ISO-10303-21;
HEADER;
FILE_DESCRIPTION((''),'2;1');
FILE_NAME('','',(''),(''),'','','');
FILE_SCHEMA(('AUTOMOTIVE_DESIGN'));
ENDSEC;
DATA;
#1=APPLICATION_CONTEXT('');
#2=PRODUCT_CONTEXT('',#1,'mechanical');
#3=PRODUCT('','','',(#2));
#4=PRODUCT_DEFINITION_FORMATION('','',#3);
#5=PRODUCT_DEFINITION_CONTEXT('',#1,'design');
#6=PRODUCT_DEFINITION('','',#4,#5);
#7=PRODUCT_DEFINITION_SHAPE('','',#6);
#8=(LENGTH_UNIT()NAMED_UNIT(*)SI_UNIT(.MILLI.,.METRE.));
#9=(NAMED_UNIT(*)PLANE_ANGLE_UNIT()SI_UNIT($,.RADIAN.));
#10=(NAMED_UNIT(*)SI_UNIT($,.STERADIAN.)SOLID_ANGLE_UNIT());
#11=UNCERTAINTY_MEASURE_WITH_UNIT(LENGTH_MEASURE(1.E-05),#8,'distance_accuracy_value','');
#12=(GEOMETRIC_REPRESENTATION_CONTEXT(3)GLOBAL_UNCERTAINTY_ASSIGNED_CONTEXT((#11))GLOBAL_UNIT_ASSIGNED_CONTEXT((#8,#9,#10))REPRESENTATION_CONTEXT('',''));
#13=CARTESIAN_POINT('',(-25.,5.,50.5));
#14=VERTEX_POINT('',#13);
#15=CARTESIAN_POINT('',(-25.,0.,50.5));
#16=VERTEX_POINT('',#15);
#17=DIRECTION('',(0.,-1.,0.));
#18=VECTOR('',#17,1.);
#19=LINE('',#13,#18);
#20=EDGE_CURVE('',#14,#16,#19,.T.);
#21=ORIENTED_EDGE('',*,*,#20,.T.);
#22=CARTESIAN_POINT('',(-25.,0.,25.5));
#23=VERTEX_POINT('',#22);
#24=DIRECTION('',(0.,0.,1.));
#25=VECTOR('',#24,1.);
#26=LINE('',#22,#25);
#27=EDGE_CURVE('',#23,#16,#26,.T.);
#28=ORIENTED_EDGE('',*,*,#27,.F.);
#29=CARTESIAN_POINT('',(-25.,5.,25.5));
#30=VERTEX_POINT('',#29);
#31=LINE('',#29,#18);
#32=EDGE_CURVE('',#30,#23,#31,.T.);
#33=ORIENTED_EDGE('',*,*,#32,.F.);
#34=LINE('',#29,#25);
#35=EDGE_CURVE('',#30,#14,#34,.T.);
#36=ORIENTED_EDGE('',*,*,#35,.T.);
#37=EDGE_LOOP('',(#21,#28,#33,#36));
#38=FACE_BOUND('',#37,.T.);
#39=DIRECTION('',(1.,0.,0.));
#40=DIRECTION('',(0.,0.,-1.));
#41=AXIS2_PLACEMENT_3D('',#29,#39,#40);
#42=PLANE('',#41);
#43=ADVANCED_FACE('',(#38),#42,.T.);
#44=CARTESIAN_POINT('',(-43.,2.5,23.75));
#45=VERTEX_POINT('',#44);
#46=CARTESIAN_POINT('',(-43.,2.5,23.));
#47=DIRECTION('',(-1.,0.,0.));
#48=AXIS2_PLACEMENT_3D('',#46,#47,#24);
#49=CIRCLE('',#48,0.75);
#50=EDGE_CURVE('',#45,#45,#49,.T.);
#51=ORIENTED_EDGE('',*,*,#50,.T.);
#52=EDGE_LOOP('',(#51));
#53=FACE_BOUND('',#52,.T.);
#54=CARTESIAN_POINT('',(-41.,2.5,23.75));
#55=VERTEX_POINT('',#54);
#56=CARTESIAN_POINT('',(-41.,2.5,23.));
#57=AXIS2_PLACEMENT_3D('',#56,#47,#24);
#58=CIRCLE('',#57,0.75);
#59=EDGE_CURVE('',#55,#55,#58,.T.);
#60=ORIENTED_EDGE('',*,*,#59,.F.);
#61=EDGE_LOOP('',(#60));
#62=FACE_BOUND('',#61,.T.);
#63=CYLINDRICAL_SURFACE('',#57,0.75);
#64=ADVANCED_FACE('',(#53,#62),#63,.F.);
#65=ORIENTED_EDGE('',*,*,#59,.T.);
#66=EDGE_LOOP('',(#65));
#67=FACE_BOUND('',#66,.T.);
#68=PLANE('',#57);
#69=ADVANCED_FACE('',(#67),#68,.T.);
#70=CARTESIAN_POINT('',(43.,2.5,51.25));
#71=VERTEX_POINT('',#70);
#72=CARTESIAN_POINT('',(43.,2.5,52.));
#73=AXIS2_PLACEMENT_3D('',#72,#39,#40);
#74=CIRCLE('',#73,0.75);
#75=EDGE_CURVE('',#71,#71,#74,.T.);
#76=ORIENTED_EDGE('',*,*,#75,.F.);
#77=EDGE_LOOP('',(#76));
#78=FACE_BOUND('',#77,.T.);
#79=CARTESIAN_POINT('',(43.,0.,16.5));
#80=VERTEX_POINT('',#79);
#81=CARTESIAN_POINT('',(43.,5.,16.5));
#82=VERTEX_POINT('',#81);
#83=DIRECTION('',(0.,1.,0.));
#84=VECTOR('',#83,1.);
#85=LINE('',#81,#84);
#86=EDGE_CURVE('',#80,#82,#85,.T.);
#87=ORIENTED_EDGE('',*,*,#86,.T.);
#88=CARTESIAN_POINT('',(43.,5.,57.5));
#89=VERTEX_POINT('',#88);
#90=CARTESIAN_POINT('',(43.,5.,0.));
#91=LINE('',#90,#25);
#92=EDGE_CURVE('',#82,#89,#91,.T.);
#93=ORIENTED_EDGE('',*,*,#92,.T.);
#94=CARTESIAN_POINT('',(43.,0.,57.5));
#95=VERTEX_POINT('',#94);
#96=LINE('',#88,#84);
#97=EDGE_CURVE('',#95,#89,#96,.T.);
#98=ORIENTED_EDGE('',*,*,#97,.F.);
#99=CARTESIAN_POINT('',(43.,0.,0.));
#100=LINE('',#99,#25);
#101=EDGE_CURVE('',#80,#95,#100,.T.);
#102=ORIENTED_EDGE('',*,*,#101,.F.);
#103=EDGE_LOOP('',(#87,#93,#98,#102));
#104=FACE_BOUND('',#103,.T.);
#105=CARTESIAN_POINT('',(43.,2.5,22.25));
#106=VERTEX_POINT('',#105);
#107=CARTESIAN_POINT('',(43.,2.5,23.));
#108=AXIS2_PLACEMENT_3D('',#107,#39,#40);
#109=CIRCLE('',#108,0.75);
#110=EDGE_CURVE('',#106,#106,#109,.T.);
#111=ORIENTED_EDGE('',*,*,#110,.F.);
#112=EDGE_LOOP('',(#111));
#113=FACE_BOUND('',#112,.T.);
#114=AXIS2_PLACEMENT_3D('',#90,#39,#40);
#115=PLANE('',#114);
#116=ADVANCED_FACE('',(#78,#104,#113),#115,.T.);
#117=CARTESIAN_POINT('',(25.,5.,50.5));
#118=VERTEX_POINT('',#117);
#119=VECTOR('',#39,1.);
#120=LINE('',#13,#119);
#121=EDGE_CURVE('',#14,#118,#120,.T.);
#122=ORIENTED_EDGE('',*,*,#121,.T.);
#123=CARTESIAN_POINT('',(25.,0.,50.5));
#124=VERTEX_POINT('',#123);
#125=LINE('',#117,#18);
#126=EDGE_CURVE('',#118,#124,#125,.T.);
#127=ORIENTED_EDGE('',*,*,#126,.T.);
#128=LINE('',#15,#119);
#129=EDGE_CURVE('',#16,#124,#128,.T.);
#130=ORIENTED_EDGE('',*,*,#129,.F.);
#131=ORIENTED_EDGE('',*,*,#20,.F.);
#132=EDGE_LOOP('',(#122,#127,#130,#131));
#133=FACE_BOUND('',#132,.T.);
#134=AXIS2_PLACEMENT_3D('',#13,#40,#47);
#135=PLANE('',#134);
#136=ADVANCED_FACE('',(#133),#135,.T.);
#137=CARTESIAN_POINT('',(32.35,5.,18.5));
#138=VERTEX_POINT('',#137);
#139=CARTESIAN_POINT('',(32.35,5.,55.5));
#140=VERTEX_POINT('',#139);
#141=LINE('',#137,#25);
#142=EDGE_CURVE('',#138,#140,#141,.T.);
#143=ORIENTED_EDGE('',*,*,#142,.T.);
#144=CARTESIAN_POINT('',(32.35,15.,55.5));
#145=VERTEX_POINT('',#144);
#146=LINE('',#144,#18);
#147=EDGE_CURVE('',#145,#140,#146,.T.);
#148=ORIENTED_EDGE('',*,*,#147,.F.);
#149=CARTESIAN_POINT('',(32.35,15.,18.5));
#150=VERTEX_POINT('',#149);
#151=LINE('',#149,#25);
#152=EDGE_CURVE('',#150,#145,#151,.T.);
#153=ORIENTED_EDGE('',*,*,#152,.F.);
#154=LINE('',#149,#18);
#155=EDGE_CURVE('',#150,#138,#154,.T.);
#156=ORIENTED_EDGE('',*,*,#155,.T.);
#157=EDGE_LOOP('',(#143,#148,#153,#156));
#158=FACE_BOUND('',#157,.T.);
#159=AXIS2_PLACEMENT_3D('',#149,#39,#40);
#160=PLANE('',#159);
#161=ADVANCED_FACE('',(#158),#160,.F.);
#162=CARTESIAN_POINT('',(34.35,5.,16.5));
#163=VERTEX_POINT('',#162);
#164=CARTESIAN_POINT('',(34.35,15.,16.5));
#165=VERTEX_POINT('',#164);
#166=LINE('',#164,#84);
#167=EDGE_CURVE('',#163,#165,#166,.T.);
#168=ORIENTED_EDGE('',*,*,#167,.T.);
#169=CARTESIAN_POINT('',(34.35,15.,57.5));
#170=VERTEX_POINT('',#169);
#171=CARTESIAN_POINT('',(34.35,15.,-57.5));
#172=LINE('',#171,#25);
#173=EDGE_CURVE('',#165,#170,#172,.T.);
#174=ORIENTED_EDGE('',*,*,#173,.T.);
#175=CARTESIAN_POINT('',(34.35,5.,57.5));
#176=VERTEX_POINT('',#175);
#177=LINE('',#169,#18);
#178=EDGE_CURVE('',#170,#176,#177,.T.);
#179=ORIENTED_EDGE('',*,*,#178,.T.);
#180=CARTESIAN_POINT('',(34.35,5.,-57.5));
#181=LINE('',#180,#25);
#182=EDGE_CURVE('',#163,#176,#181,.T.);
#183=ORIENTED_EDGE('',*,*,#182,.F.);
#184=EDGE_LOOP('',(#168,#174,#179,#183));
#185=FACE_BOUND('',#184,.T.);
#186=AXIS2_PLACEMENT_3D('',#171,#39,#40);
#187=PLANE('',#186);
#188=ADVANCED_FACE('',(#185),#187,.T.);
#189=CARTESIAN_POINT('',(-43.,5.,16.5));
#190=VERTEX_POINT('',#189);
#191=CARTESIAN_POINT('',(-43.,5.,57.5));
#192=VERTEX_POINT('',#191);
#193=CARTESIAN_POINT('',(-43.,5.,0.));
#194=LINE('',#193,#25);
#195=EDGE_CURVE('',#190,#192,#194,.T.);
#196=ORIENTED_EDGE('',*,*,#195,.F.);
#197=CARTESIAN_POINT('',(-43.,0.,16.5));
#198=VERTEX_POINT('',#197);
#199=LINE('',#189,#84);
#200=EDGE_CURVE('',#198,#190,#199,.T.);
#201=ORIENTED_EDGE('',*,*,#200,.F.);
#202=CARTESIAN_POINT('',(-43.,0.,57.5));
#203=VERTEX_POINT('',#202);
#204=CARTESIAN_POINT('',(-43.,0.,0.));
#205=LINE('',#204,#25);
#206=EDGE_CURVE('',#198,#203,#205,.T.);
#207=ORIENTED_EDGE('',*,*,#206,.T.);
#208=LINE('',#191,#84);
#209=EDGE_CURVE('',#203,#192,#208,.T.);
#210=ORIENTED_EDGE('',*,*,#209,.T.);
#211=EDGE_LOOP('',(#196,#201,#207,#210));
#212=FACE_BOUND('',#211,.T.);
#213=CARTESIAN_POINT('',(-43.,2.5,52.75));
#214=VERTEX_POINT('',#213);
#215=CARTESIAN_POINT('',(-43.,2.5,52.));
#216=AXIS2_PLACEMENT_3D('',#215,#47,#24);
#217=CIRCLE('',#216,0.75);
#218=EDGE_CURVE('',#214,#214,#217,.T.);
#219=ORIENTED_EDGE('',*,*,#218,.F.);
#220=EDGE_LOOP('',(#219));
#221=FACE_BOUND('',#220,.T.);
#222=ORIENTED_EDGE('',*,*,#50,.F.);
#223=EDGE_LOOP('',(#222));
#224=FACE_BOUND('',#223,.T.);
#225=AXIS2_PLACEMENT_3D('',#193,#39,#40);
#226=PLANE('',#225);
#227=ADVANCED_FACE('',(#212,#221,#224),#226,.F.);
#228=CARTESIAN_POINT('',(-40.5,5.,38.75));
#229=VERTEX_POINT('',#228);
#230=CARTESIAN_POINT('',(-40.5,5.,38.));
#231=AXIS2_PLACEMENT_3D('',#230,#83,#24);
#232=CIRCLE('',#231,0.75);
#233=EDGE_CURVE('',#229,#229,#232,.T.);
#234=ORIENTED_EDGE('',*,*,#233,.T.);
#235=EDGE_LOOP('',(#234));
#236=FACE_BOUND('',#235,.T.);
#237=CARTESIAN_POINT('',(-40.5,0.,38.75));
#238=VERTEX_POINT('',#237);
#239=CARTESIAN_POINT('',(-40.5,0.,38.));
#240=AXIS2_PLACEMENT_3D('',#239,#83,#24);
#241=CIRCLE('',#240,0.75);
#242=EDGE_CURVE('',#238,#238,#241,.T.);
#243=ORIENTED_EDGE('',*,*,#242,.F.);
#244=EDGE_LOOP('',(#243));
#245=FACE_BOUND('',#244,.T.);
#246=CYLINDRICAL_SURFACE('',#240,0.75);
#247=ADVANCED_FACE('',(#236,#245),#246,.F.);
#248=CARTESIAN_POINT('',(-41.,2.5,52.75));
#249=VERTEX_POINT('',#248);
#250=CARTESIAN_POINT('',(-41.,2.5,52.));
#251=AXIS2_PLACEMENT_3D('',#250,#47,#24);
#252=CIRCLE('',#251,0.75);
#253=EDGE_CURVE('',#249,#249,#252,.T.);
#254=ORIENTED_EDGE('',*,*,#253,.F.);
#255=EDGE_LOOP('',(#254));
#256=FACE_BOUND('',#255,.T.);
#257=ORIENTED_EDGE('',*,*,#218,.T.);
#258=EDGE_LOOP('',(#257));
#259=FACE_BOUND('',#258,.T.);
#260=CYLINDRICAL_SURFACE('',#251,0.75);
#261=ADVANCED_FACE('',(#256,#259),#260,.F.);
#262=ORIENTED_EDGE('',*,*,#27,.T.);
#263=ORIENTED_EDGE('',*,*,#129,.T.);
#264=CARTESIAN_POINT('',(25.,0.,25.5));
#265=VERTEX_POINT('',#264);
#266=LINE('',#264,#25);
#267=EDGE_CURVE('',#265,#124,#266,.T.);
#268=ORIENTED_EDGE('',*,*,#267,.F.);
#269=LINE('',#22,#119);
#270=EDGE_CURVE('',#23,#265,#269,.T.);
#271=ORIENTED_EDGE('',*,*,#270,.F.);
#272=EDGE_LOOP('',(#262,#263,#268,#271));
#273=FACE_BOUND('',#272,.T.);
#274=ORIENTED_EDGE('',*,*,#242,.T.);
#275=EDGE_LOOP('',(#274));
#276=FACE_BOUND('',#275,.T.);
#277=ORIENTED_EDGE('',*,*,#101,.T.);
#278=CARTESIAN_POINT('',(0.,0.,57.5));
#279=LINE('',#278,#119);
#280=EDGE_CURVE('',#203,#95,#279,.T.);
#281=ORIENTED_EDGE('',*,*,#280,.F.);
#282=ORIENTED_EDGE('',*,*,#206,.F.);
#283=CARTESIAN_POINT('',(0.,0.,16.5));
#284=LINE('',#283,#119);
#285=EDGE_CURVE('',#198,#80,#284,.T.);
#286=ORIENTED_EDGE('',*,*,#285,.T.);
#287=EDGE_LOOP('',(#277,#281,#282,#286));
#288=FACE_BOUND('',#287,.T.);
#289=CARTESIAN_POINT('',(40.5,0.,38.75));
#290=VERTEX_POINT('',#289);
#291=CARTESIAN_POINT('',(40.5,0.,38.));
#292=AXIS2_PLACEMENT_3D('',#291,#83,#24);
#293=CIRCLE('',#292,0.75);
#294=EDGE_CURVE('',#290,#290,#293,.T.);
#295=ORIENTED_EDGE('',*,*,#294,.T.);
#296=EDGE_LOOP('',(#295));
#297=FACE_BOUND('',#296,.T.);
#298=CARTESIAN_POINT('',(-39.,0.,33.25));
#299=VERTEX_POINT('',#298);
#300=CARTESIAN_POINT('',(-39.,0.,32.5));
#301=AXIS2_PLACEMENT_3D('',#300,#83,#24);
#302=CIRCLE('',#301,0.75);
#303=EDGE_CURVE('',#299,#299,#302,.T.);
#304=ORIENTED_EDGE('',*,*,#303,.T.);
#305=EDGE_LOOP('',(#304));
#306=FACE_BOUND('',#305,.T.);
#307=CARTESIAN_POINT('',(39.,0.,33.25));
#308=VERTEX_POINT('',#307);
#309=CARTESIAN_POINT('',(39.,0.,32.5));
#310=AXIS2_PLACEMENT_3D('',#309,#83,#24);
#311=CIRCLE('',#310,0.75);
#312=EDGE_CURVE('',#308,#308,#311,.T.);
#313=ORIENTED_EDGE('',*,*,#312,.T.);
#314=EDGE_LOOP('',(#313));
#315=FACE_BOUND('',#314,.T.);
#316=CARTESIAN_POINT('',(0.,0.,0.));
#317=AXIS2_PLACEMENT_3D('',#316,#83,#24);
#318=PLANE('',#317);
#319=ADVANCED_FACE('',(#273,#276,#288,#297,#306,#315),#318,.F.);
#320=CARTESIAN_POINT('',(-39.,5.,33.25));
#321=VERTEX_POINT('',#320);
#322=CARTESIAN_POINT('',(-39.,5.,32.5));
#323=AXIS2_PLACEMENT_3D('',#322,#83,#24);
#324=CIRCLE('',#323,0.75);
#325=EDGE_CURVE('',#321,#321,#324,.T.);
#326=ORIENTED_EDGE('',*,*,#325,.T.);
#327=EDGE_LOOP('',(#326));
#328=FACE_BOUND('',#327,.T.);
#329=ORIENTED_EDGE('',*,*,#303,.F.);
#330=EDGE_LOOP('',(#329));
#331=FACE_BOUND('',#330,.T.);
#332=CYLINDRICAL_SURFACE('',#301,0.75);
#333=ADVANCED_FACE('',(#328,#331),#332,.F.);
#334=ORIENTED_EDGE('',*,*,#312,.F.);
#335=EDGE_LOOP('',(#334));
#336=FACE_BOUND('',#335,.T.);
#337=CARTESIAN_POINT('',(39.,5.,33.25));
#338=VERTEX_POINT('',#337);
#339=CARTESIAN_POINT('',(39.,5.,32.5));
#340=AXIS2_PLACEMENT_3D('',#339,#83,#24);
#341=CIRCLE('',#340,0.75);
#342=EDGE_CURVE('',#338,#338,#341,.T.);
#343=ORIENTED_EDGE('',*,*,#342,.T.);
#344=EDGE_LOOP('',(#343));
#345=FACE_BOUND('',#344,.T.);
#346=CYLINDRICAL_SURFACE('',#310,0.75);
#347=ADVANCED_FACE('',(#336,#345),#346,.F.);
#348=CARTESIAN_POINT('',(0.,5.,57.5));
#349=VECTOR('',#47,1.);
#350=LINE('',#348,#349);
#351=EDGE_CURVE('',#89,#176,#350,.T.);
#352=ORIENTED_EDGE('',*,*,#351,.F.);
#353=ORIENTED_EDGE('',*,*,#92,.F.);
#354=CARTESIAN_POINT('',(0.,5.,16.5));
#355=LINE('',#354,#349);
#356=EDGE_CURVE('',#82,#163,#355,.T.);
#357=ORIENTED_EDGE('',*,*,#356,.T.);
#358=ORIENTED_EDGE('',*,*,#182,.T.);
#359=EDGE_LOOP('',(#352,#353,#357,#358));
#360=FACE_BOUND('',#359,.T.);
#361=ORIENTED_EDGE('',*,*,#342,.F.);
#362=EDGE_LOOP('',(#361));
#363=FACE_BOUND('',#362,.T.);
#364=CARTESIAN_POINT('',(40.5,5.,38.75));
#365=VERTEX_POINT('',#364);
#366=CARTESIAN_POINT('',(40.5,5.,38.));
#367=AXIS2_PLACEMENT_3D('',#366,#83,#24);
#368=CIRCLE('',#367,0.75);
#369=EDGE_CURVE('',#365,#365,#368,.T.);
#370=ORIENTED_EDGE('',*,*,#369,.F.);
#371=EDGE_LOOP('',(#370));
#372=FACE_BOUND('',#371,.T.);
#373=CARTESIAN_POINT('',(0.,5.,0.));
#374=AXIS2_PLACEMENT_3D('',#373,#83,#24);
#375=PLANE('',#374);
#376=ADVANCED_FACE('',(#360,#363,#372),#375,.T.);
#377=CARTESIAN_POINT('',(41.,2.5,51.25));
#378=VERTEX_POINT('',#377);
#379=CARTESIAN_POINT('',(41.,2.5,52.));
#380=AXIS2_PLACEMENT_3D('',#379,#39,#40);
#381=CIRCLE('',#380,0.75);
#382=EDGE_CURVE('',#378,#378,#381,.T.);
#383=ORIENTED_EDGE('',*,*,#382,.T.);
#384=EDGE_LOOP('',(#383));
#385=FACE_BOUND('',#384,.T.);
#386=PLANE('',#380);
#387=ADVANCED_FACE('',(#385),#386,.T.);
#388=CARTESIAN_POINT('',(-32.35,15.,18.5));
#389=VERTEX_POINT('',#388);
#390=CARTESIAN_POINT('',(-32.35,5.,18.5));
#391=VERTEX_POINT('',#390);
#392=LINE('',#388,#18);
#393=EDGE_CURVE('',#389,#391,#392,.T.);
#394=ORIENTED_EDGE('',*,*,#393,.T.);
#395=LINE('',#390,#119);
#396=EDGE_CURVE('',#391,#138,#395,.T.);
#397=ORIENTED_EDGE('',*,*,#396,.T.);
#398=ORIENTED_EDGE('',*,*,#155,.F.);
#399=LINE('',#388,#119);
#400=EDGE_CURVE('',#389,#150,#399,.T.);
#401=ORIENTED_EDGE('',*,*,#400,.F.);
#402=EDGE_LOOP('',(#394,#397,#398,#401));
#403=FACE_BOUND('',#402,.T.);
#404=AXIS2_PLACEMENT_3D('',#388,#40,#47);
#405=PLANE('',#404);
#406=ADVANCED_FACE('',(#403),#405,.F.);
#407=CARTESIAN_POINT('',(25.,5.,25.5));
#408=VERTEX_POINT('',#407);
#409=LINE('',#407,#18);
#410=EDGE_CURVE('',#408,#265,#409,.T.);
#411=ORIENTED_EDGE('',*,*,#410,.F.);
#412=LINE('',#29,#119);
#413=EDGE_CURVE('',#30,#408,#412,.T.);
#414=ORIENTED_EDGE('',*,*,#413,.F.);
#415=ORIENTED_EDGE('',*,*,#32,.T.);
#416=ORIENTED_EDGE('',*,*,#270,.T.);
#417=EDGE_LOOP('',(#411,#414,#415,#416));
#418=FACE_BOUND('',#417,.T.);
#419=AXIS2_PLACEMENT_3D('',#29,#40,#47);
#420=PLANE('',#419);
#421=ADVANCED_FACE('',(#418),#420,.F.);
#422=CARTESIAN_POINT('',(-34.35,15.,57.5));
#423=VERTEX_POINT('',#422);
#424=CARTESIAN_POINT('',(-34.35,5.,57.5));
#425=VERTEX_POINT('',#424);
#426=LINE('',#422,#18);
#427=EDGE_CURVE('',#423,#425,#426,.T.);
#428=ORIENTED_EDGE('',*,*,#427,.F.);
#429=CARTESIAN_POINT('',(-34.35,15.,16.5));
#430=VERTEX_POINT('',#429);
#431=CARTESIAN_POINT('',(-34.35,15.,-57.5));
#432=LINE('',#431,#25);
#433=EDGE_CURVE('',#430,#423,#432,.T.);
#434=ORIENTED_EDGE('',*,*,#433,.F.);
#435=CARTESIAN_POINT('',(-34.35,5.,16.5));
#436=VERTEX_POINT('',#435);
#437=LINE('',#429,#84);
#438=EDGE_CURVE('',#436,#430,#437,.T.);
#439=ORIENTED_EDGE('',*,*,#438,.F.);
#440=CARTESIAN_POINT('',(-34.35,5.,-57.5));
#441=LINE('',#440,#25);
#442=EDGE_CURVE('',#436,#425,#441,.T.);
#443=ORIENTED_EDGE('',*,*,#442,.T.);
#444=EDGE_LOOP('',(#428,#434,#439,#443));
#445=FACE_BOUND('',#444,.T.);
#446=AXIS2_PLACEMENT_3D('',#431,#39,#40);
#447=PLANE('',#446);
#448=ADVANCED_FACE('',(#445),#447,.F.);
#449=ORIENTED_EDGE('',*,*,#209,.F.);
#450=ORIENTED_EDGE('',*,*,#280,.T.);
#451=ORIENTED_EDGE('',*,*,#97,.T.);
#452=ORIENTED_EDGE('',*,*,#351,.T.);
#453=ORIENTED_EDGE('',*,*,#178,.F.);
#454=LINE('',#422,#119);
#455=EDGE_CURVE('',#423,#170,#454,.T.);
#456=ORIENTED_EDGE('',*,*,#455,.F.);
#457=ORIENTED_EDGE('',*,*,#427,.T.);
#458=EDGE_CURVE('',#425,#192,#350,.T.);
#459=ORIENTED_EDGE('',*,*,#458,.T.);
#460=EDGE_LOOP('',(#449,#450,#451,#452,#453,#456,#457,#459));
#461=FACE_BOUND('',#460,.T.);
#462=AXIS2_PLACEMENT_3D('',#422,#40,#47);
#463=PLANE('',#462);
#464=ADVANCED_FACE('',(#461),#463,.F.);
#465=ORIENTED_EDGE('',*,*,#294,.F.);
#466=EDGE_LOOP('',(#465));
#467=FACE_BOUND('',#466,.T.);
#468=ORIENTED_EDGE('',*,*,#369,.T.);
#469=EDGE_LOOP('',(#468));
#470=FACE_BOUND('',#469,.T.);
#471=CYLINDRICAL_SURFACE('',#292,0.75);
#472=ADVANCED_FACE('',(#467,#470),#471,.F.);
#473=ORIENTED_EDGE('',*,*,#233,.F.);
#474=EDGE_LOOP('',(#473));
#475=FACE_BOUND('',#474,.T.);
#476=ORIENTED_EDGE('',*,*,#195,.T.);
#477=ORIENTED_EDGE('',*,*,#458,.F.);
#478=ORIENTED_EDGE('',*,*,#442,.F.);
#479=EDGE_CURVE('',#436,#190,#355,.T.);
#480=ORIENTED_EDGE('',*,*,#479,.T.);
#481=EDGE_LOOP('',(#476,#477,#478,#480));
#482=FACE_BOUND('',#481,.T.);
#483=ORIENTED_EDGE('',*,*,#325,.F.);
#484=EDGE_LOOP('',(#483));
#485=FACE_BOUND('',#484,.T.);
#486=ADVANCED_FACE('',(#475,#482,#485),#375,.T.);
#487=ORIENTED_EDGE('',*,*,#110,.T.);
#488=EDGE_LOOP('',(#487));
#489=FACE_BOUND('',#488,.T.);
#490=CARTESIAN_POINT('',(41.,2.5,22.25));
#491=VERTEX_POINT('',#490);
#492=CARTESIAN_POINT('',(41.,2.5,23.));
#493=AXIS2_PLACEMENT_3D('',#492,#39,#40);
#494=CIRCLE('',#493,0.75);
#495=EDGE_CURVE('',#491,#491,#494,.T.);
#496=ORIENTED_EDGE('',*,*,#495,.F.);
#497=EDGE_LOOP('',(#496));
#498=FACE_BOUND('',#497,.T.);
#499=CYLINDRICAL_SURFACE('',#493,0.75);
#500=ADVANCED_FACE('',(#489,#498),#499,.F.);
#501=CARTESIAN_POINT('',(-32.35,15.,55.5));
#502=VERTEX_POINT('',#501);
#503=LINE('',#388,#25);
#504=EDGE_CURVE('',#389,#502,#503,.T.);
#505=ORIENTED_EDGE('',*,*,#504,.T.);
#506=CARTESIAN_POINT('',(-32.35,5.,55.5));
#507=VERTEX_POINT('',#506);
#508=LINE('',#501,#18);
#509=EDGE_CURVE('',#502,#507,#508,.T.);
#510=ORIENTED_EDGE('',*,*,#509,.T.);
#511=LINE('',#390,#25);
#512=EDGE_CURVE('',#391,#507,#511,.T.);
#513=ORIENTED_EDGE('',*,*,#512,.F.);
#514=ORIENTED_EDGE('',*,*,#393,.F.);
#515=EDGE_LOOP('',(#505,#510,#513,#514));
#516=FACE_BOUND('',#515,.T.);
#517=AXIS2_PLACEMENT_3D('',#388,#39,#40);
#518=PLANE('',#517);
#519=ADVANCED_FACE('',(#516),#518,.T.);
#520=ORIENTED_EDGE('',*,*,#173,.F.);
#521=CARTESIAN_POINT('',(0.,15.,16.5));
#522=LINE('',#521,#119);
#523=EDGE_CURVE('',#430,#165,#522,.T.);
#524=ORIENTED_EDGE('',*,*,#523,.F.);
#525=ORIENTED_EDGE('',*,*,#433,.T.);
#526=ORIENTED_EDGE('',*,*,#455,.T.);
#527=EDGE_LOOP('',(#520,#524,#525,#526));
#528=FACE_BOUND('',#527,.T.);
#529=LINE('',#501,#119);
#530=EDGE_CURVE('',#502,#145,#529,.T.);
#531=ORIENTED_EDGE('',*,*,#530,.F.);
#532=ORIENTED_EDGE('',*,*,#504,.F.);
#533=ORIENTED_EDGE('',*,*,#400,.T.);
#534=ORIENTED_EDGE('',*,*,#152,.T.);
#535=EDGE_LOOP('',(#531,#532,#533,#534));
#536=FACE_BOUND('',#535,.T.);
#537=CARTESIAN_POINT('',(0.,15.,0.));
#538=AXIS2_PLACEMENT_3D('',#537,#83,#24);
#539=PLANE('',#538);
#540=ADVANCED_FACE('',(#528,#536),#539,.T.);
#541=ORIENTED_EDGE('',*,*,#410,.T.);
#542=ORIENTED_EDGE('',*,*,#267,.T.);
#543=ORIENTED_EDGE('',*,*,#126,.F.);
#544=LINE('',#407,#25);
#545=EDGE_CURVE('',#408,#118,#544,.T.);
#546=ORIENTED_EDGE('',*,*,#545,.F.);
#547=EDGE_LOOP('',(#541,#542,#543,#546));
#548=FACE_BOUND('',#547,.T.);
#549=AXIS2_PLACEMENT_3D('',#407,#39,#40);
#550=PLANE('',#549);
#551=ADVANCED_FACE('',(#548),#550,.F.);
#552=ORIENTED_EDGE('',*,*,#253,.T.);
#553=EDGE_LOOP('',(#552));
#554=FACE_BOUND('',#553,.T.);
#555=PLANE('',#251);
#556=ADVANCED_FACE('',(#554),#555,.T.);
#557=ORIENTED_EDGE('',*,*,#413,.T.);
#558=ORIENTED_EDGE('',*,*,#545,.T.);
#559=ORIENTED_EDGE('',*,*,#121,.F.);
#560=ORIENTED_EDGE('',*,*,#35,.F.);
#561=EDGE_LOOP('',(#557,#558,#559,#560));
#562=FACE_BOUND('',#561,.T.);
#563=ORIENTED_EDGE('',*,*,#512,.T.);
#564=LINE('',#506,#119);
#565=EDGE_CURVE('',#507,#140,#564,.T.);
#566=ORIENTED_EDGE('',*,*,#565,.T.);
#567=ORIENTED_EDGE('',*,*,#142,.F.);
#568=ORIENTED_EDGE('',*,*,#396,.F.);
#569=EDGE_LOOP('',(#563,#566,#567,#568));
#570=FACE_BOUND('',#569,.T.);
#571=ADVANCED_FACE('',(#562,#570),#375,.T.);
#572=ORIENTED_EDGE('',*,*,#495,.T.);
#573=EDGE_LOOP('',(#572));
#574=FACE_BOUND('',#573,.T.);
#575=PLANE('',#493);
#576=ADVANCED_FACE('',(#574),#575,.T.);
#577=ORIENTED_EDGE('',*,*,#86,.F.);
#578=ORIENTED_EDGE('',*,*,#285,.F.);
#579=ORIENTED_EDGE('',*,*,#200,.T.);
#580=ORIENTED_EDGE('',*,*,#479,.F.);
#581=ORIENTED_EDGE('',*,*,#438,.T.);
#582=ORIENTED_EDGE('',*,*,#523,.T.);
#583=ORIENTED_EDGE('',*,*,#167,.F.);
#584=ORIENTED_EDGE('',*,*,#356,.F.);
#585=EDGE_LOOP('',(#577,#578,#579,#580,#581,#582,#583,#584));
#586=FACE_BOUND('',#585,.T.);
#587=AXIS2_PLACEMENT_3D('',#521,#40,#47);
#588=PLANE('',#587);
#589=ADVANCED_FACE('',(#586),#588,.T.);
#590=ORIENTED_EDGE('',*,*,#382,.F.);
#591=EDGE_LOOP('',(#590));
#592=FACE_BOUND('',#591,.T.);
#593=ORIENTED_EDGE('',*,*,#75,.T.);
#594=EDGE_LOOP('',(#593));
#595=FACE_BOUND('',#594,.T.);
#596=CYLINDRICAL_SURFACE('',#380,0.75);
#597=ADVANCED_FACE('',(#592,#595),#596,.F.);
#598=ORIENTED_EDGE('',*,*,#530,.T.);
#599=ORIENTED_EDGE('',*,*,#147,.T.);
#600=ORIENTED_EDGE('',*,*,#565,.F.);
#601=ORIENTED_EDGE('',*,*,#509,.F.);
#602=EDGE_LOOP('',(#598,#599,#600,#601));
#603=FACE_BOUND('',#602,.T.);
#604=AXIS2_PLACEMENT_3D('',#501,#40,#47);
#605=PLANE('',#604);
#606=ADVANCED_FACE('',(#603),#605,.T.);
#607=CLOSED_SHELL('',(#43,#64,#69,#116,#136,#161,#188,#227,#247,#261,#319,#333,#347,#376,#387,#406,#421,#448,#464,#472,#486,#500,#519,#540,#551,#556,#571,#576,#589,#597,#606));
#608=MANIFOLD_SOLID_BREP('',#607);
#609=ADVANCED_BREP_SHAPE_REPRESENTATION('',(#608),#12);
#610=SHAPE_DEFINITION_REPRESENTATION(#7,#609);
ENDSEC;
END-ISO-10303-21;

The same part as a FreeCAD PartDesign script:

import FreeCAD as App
import Part
import Sketcher
from FreeCAD import Vector

doc = App.newDocument("Part")
body = doc.addObject("PartDesign::Body", "Body")

# Sketch on XZ plane
sketch1 = body.newObject("Sketcher::SketchObject", "Sketch")
sketch1.AttachmentSupport = (doc.getObject("XZ_Plane"), [""])
sketch1.MapMode = "FlatFace"
sketch1.addGeometry([
    Part.LineSegment(Vector(-43, -60, 0), Vector(-43, 114, 0)),  # 0
    Part.LineSegment(Vector(-43, 114, 0), Vector(43, 114, 0)),  # 1
    Part.LineSegment(Vector(43, 114, 0), Vector(43, -60, 0)),  # 2
    Part.LineSegment(Vector(43, -60, 0), Vector(-43, -60, 0)),  # 3
    Part.LineSegment(Vector(38, 108, 0), Vector(-38, 108, 0)),  # 4
    Part.LineSegment(Vector(-38, 108, 0), Vector(-38, 66, 0)),  # 5
    Part.LineSegment(Vector(-38, 66, 0), Vector(38, 66, 0)),  # 6
    Part.LineSegment(Vector(38, 66, 0), Vector(38, 108, 0)),  # 7
    Part.LineSegment(Vector(25, 50, 0), Vector(-25, 50, 0)),  # 8
    Part.LineSegment(Vector(-25, 50, 0), Vector(-25, 26, 0)),  # 9
    Part.LineSegment(Vector(-25, 26, 0), Vector(25, 26, 0)),  # 10
    Part.LineSegment(Vector(25, 26, 0), Vector(25, 50, 0)),  # 11
    Part.LineSegment(Vector(25, 4, 0), Vector(-25, 4, 0)),  # 12
    Part.LineSegment(Vector(-25, 4, 0), Vector(-25, -50, 0)),  # 13
    Part.LineSegment(Vector(-25, -50, 0), Vector(25, -50, 0)),  # 14
    Part.LineSegment(Vector(25, -50, 0), Vector(25, 4, 0)),  # 15
], False)
sketch1.addConstraint([
    Sketcher.Constraint("Coincident", 0, 2, 1, 1),
    Sketcher.Constraint("Coincident", 1, 2, 2, 1),
    Sketcher.Constraint("Coincident", 2, 2, 3, 1),
    Sketcher.Constraint("Coincident", 3, 2, 0, 1),
    Sketcher.Constraint("Coincident", 4, 2, 5, 1),
    Sketcher.Constraint("Coincident", 5, 2, 6, 1),
    Sketcher.Constraint("Coincident", 6, 2, 7, 1),
    Sketcher.Constraint("Coincident", 7, 2, 4, 1),
    Sketcher.Constraint("Coincident", 8, 2, 9, 1),
    Sketcher.Constraint("Coincident", 9, 2, 10, 1),
    Sketcher.Constraint("Coincident", 10, 2, 11, 1),
    Sketcher.Constraint("Coincident", 11, 2, 8, 1),
    Sketcher.Constraint("Coincident", 12, 2, 13, 1),
    Sketcher.Constraint("Coincident", 13, 2, 14, 1),
    Sketcher.Constraint("Coincident", 14, 2, 15, 1),
    Sketcher.Constraint("Coincident", 15, 2, 12, 1),
    Sketcher.Constraint("Vertical", 0),
    Sketcher.Constraint("Horizontal", 1),
    Sketcher.Constraint("Vertical", 2),
    Sketcher.Constraint("Horizontal", 3),
    Sketcher.Constraint("Horizontal", 4),
    Sketcher.Constraint("Vertical", 5),
    Sketcher.Constraint("Horizontal", 6),
    Sketcher.Constraint("Vertical", 7),
    Sketcher.Constraint("Horizontal", 8),
    Sketcher.Constraint("Vertical", 9),
    Sketcher.Constraint("Horizontal", 10),
    Sketcher.Constraint("Vertical", 11),
    Sketcher.Constraint("Horizontal", 12),
    Sketcher.Constraint("Vertical", 13),
    Sketcher.Constraint("Horizontal", 14),
    Sketcher.Constraint("Vertical", 15),
    Sketcher.Constraint("Symmetric", 11, 2, 13, 2, -1, 1),
    Sketcher.Constraint("Vertical", 9, 2, 12, 2),
    Sketcher.Constraint("Vertical", 11, 2, 14, 2),
    Sketcher.Constraint("DistanceX", 1, 1, 1, 2, 86.0),
    Sketcher.Constraint("DistanceX", 4, 2, 4, 1, 76.0),
    Sketcher.Constraint("DistanceX", 8, 2, 8, 1, 50.0),
    Sketcher.Constraint("DistanceY", 0, 1, 0, 2, 174.0),
    Sketcher.Constraint("DistanceY", 5, 2, 5, 1, 43.0),
    Sketcher.Constraint("DistanceY", 9, 2, 9, 1, 25.0),
    Sketcher.Constraint("DistanceY", 13, 2, 13, 1, 55.0),
    Sketcher.Constraint("DistanceX", 0, 2, -1, 1, 43.0),
    Sketcher.Constraint("DistanceX", 4, 2, -1, 1, 38.0),
    Sketcher.Constraint("DistanceY", 4, 2, 0, 2, 5.0),
    Sketcher.Constraint("DistanceY", 8, 2, 5, 2, 15.0),
    Sketcher.Constraint("DistanceY", 12, 2, 9, 2, 21.0),
])
pad1 = body.newObject("PartDesign::Pad", "Pad")
pad1.Profile = sketch1
pad1.Length = 5
pad1.Reversed = True

# Sketch on XZ plane
sketch2 = body.newObject("Sketcher::SketchObject", "Sketch001")
sketch2.AttachmentSupport = (doc.getObject("XZ_Plane"), [""])
sketch2.MapMode = "FlatFace"
sketch2.AttachmentOffset = App.Placement(Vector(0, 0, -5), App.Rotation())
sketch2.addGeometry([
    Part.LineSegment(Vector(-34, -58, 0), Vector(-34, 58, 0)),  # 0
    Part.LineSegment(Vector(-34, 58, 0), Vector(34, 58, 0)),  # 1
    Part.LineSegment(Vector(34, 58, 0), Vector(34, -58, 0)),  # 2
    Part.LineSegment(Vector(34, -58, 0), Vector(-34, -58, 0)),  # 3
    Part.LineSegment(Vector(32, 56, 0), Vector(-32, 56, 0)),  # 4
    Part.LineSegment(Vector(-32, 56, 0), Vector(-32, 18, 0)),  # 5
    Part.LineSegment(Vector(-32, 18, 0), Vector(32, 18, 0)),  # 6
    Part.LineSegment(Vector(32, 18, 0), Vector(32, 56, 0)),  # 7
    Part.LineSegment(Vector(32, 14, 0), Vector(-32, 14, 0)),  # 8
    Part.LineSegment(Vector(-32, 14, 0), Vector(-32, -56, 0)),  # 9
    Part.LineSegment(Vector(-32, -56, 0), Vector(32, -56, 0)),  # 10
    Part.LineSegment(Vector(32, -56, 0), Vector(32, 14, 0)),  # 11
], False)
sketch2.addConstraint([
    Sketcher.Constraint("Coincident", 0, 2, 1, 1),
    Sketcher.Constraint("Coincident", 1, 2, 2, 1),
    Sketcher.Constraint("Coincident", 2, 2, 3, 1),
    Sketcher.Constraint("Coincident", 3, 2, 0, 1),
    Sketcher.Constraint("Coincident", 4, 2, 5, 1),
    Sketcher.Constraint("Coincident", 5, 2, 6, 1),
    Sketcher.Constraint("Coincident", 6, 2, 7, 1),
    Sketcher.Constraint("Coincident", 7, 2, 4, 1),
    Sketcher.Constraint("Coincident", 8, 2, 9, 1),
    Sketcher.Constraint("Coincident", 9, 2, 10, 1),
    Sketcher.Constraint("Coincident", 10, 2, 11, 1),
    Sketcher.Constraint("Coincident", 11, 2, 8, 1),
    Sketcher.Constraint("Vertical", 0),
    Sketcher.Constraint("Horizontal", 1),
    Sketcher.Constraint("Vertical", 2),
    Sketcher.Constraint("Horizontal", 3),
    Sketcher.Constraint("Horizontal", 4),
    Sketcher.Constraint("Vertical", 5),
    Sketcher.Constraint("Horizontal", 6),
    Sketcher.Constraint("Vertical", 7),
    Sketcher.Constraint("Horizontal", 8),
    Sketcher.Constraint("Vertical", 9),
    Sketcher.Constraint("Horizontal", 10),
    Sketcher.Constraint("Vertical", 11),
    Sketcher.Constraint("Symmetric", 0, 2, 2, 2, -1, 1),
    Sketcher.Constraint("Symmetric", 7, 2, 9, 2, -1, 1),
    Sketcher.Constraint("Vertical", 5, 2, 8, 2),
    Sketcher.Constraint("Vertical", 7, 2, 10, 2),
    Sketcher.Constraint("DistanceY", 0, 1, 0, 2, 115.0),
    Sketcher.Constraint("DistanceY", 5, 2, 5, 1, 37.0),
    Sketcher.Constraint("DistanceY", 9, 2, 9, 1, 70.0),
    Sketcher.Constraint("DistanceX", 1, 1, 1, 2, 68.7),
    Sketcher.Constraint("DistanceX", 4, 2, 4, 1, 64.7),
    Sketcher.Constraint("DistanceY", 4, 2, 0, 2, 2.0),
])
pad2 = body.newObject("PartDesign::Pad", "Pad001")
pad2.Profile = sketch2
pad2.Length = 10
pad2.Reversed = True

# Sketch on XZ plane
sketch3 = body.newObject("Sketcher::SketchObject", "Sketch002")
sketch3.AttachmentSupport = (doc.getObject("XZ_Plane"), [""])
sketch3.MapMode = "FlatFace"
sketch3.AttachmentOffset = App.Placement(Vector(0, 0, -5), App.Rotation())
sketch3.addGeometry([
    Part.Circle(Vector(-39, -20.5, 0), Vector(0, 0, 1), 0.8),  # 0
    Part.Circle(Vector(39, -20.5, 0), Vector(0, 0, 1), 0.8),  # 1
    Part.Circle(Vector(-39, 32.5, 0), Vector(0, 0, 1), 0.8),  # 2
    Part.Circle(Vector(39, 32.5, 0), Vector(0, 0, 1), 0.8),  # 3
    Part.Circle(Vector(-40.1, 60.4, 0), Vector(0, 0, 1), 0.8),  # 4
    Part.Circle(Vector(40.1, 60.4, 0), Vector(0, 0, 1), 0.8),  # 5
    Part.Circle(Vector(-40.1, 110.5, 0), Vector(0, 0, 1), 0.8),  # 6
    Part.Circle(Vector(40.1, 110.5, 0), Vector(0, 0, 1), 0.8),  # 7
    Part.Circle(Vector(-40.5, -57.5, 0), Vector(0, 0, 1), 0.8),  # 8
    Part.Circle(Vector(-40.5, 38, 0), Vector(0, 0, 1), 0.8),  # 9
    Part.Circle(Vector(-40.5, 85.5, 0), Vector(0, 0, 1), 0.8),  # 10
    Part.Circle(Vector(40.5, -57.5, 0), Vector(0, 0, 1), 0.8),  # 11
    Part.Circle(Vector(40.5, 38, 0), Vector(0, 0, 1), 0.8),  # 12
    Part.Circle(Vector(40.5, 85.5, 0), Vector(0, 0, 1), 0.8),  # 13
    Part.Circle(Vector(-40.5, 4.5, 0), Vector(0, 0, 1), 0.8),  # 14
    Part.Circle(Vector(40.5, 4.5, 0), Vector(0, 0, 1), 0.8),  # 15
], False)
sketch3.addConstraint([
    Sketcher.Constraint("Equal", 0, 1),
    Sketcher.Constraint("Equal", 1, 2),
    Sketcher.Constraint("Equal", 2, 3),
    Sketcher.Constraint("Equal", 3, 4),
    Sketcher.Constraint("Equal", 4, 5),
    Sketcher.Constraint("Equal", 5, 6),
    Sketcher.Constraint("Equal", 6, 7),
    Sketcher.Constraint("Equal", 7, 8),
    Sketcher.Constraint("Equal", 8, 9),
    Sketcher.Constraint("Equal", 9, 10),
    Sketcher.Constraint("Equal", 10, 11),
    Sketcher.Constraint("Equal", 11, 12),
    Sketcher.Constraint("Equal", 12, 13),
    Sketcher.Constraint("Equal", 13, 14),
    Sketcher.Constraint("Equal", 14, 15),
    Sketcher.Constraint("Symmetric", 0, 3, 1, 3, -2),
    Sketcher.Constraint("Symmetric", 2, 3, 3, 3, -2),
    Sketcher.Constraint("Symmetric", 4, 3, 5, 3, -2),
    Sketcher.Constraint("Symmetric", 6, 3, 7, 3, -2),
    Sketcher.Constraint("Symmetric", 8, 3, 11, 3, -2),
    Sketcher.Constraint("Symmetric", 9, 3, 12, 3, -2),
    Sketcher.Constraint("Symmetric", 10, 3, 13, 3, -2),
    Sketcher.Constraint("Symmetric", 14, 3, 15, 3, -2),
    Sketcher.Constraint("Vertical", 0, 3, 2, 3),
    Sketcher.Constraint("Vertical", 4, 3, 6, 3),
    Sketcher.Constraint("Vertical", 8, 3, 9, 3),
    Sketcher.Constraint("Vertical", 9, 3, 10, 3),
    Sketcher.Constraint("Vertical", 10, 3, 14, 3),
    Sketcher.Constraint("Diameter", 0, 1.5),
    Sketcher.Constraint("DistanceX", 0, 3, -1, 1, 39.0),
    Sketcher.Constraint("DistanceY", -1, 1, 9, 3, 38.0),
    Sketcher.Constraint("DistanceY", 0, 3, 2, 3, 53.0),
    Sketcher.Constraint("DistanceY", 8, 3, 0, 3, 37.0),
    Sketcher.Constraint("DistanceY", 2, 3, 10, 3, 53.0),
    Sketcher.Constraint("DistanceX", 8, 3, 11, 3, 81.0),
    Sketcher.Constraint("DistanceY", 0, 3, 14, 3, 25.0),
    Sketcher.Constraint("DistanceY", 0, 3, -1, 1, 20.5),
    Sketcher.Constraint("DistanceY", -1, 1, 4, 3, 60.35),
    Sketcher.Constraint("DistanceY", -1, 1, 6, 3, 110.5303),
    Sketcher.Constraint("DistanceX", 4, 3, -1, 1, 40.142778),
])
pocket1 = body.newObject("PartDesign::Pocket", "Pocket")
pocket1.Profile = sketch3
pocket1.Type = "ThroughAll"
pocket1.Reversed = True

# Sketch on XZ plane
sketch4 = body.newObject("Sketcher::SketchObject", "Sketch003")
sketch4.AttachmentSupport = (doc.getObject("XZ_Plane"), [""])
sketch4.MapMode = "FlatFace"
sketch4.AttachmentOffset = App.Placement(Vector(0, 0, -5), App.Rotation())
sketch4.addGeometry([
    Part.LineSegment(Vector(-32, 58, 0), Vector(-32, 66, 0)),  # 0
    Part.LineSegment(Vector(-32, 66, 0), Vector(-17, 66, 0)),  # 1
    Part.LineSegment(Vector(-17, 66, 0), Vector(-17, 58, 0)),  # 2
    Part.LineSegment(Vector(-17, 58, 0), Vector(-32, 58, 0)),  # 3
    Part.LineSegment(Vector(-13, 58, 0), Vector(-13, 66, 0)),  # 4
    Part.LineSegment(Vector(-13, 66, 0), Vector(13, 66, 0)),  # 5
    Part.LineSegment(Vector(13, 66, 0), Vector(13, 58, 0)),  # 6
    Part.LineSegment(Vector(13, 58, 0), Vector(-13, 58, 0)),  # 7
    Part.LineSegment(Vector(-43, 74, 0), Vector(-43, 84, 0)),  # 8
    Part.LineSegment(Vector(-43, 84, 0), Vector(-38, 84, 0)),  # 9
    Part.LineSegment(Vector(-38, 84, 0), Vector(-38, 74, 0)),  # 10
    Part.LineSegment(Vector(-38, 74, 0), Vector(-43, 74, 0)),  # 11
    Part.LineSegment(Vector(-43, 95, 0), Vector(-43, 108, 0)),  # 12
    Part.LineSegment(Vector(-43, 108, 0), Vector(-38, 108, 0)),  # 13
    Part.LineSegment(Vector(-38, 108, 0), Vector(-38, 95, 0)),  # 14
    Part.LineSegment(Vector(-38, 95, 0), Vector(-43, 95, 0)),  # 15
    Part.LineSegment(Vector(-35, 108, 0), Vector(-35, 114, 0)),  # 16
    Part.LineSegment(Vector(-35, 114, 0), Vector(-29, 114, 0)),  # 17
    Part.LineSegment(Vector(-29, 114, 0), Vector(-29, 108, 0)),  # 18
    Part.LineSegment(Vector(-29, 108, 0), Vector(-35, 108, 0)),  # 19
    Part.LineSegment(Vector(-6, 108, 0), Vector(-6, 114, 0)),  # 20
    Part.LineSegment(Vector(-6, 114, 0), Vector(0, 114, 0)),  # 21
    Part.LineSegment(Vector(0, 114, 0), Vector(0, 108, 0)),  # 22
    Part.LineSegment(Vector(0, 108, 0), Vector(-6, 108, 0)),  # 23
    Part.LineSegment(Vector(14, 108, 0), Vector(14, 114, 0)),  # 24
    Part.LineSegment(Vector(14, 114, 0), Vector(21, 114, 0)),  # 25
    Part.LineSegment(Vector(21, 114, 0), Vector(21, 108, 0)),  # 26
    Part.LineSegment(Vector(21, 108, 0), Vector(14, 108, 0)),  # 27
    Part.LineSegment(Vector(27, 108, 0), Vector(27, 114, 0)),  # 28
    Part.LineSegment(Vector(27, 114, 0), Vector(34, 114, 0)),  # 29
    Part.LineSegment(Vector(34, 114, 0), Vector(34, 108, 0)),  # 30
    Part.LineSegment(Vector(34, 108, 0), Vector(27, 108, 0)),  # 31
    Part.LineSegment(Vector(38, 82, 0), Vector(38, 102, 0)),  # 32
    Part.LineSegment(Vector(38, 102, 0), Vector(43, 102, 0)),  # 33
    Part.LineSegment(Vector(43, 102, 0), Vector(43, 82, 0)),  # 34
    Part.LineSegment(Vector(43, 82, 0), Vector(38, 82, 0)),  # 35
], False)
sketch4.addConstraint([
    Sketcher.Constraint("Coincident", 0, 2, 1, 1),
    Sketcher.Constraint("Coincident", 1, 2, 2, 1),
    Sketcher.Constraint("Coincident", 2, 2, 3, 1),
    Sketcher.Constraint("Coincident", 3, 2, 0, 1),
    Sketcher.Constraint("Coincident", 4, 2, 5, 1),
    Sketcher.Constraint("Coincident", 5, 2, 6, 1),
    Sketcher.Constraint("Coincident", 6, 2, 7, 1),
    Sketcher.Constraint("Coincident", 7, 2, 4, 1),
    Sketcher.Constraint("Coincident", 8, 2, 9, 1),
    Sketcher.Constraint("Coincident", 9, 2, 10, 1),
    Sketcher.Constraint("Coincident", 10, 2, 11, 1),
    Sketcher.Constraint("Coincident", 11, 2, 8, 1),
    Sketcher.Constraint("Coincident", 12, 2, 13, 1),
    Sketcher.Constraint("Coincident", 13, 2, 14, 1),
    Sketcher.Constraint("Coincident", 14, 2, 15, 1),
    Sketcher.Constraint("Coincident", 15, 2, 12, 1),
    Sketcher.Constraint("Coincident", 16, 2, 17, 1),
    Sketcher.Constraint("Coincident", 17, 2, 18, 1),
    Sketcher.Constraint("Coincident", 18, 2, 19, 1),
    Sketcher.Constraint("Coincident", 19, 2, 16, 1),
    Sketcher.Constraint("Coincident", 20, 2, 21, 1),
    Sketcher.Constraint("Coincident", 21, 2, 22, 1),
    Sketcher.Constraint("Coincident", 22, 2, 23, 1),
    Sketcher.Constraint("Coincident", 23, 2, 20, 1),
    Sketcher.Constraint("Coincident", 24, 2, 25, 1),
    Sketcher.Constraint("Coincident", 25, 2, 26, 1),
    Sketcher.Constraint("Coincident", 26, 2, 27, 1),
    Sketcher.Constraint("Coincident", 27, 2, 24, 1),
    Sketcher.Constraint("Coincident", 28, 2, 29, 1),
    Sketcher.Constraint("Coincident", 29, 2, 30, 1),
    Sketcher.Constraint("Coincident", 30, 2, 31, 1),
    Sketcher.Constraint("Coincident", 31, 2, 28, 1),
    Sketcher.Constraint("Coincident", 32, 2, 33, 1),
    Sketcher.Constraint("Coincident", 33, 2, 34, 1),
    Sketcher.Constraint("Coincident", 34, 2, 35, 1),
    Sketcher.Constraint("Coincident", 35, 2, 32, 1),
    Sketcher.Constraint("Vertical", 0),
    Sketcher.Constraint("Horizontal", 1),
    Sketcher.Constraint("Vertical", 2),
    Sketcher.Constraint("Horizontal", 3),
    Sketcher.Constraint("Vertical", 4),
    Sketcher.Constraint("Horizontal", 5),
    Sketcher.Constraint("Vertical", 6),
    Sketcher.Constraint("Horizontal", 7),
    Sketcher.Constraint("Vertical", 8),
    Sketcher.Constraint("Horizontal", 9),
    Sketcher.Constraint("Vertical", 10),
    Sketcher.Constraint("Horizontal", 11),
    Sketcher.Constraint("Vertical", 12),
    Sketcher.Constraint("Horizontal", 13),
    Sketcher.Constraint("Vertical", 14),
    Sketcher.Constraint("Horizontal", 15),
    Sketcher.Constraint("Vertical", 16),
    Sketcher.Constraint("Horizontal", 17),
    Sketcher.Constraint("Vertical", 18),
    Sketcher.Constraint("Horizontal", 19),
    Sketcher.Constraint("Vertical", 20),
    Sketcher.Constraint("Horizontal", 21),
    Sketcher.Constraint("Vertical", 22),
    Sketcher.Constraint("Horizontal", 23),
    Sketcher.Constraint("Vertical", 24),
    Sketcher.Constraint("Horizontal", 25),
    Sketcher.Constraint("Vertical", 26),
    Sketcher.Constraint("Horizontal", 27),
    Sketcher.Constraint("Vertical", 28),
    Sketcher.Constraint("Horizontal", 29),
    Sketcher.Constraint("Vertical", 30),
    Sketcher.Constraint("Horizontal", 31),
    Sketcher.Constraint("Vertical", 32),
    Sketcher.Constraint("Horizontal", 33),
    Sketcher.Constraint("Vertical", 34),
    Sketcher.Constraint("Horizontal", 35),
    Sketcher.Constraint("PointOnObject", 21, 2, -2),
    Sketcher.Constraint("Horizontal", 1, 2, 4, 2),
    Sketcher.Constraint("Horizontal", 3, 2, 6, 2),
    Sketcher.Constraint("Horizontal", 17, 2, 20, 2),
    Sketcher.Constraint("Horizontal", 19, 2, 22, 2),
    Sketcher.Constraint("Horizontal", 21, 2, 24, 2),
    Sketcher.Constraint("Horizontal", 23, 2, 26, 2),
    Sketcher.Constraint("Horizontal", 25, 2, 28, 2),
    Sketcher.Constraint("Horizontal", 27, 2, 30, 2),
    Sketcher.Constraint("Vertical", 11, 2, 12, 2),
    Sketcher.Constraint("Vertical", 10, 2, 13, 2),
    Sketcher.Constraint("Equal", 19, 21),
    Sketcher.Constraint("Equal", 27, 29),
    Sketcher.Constraint("Equal", 15, 33),
    Sketcher.Constraint("Equal", 35, 16),
    Sketcher.Constraint("DistanceX", 1, 1, 1, 2, 15.0),
    Sketcher.Constraint("DistanceX", 5, 1, 5, 2, 26.0),
    Sketcher.Constraint("DistanceX", 9, 1, 9, 2, 5.0),
    Sketcher.Constraint("DistanceX", 17, 1, 17, 2, 6.0),
    Sketcher.Constraint("DistanceX", 25, 1, 25, 2, 7.0),
    Sketcher.Constraint("DistanceY", 0, 1, 0, 2, 8.0),
    Sketcher.Constraint("DistanceY", 8, 1, 8, 2, 10.0),
    Sketcher.Constraint("DistanceY", 32, 1, 32, 2, 21.0),
    Sketcher.Constraint("DistanceX", 0, 2, -1, 1, 32.0),
    Sketcher.Constraint("DistanceX", 4, 2, -1, 1, 13.0),
    Sketcher.Constraint("DistanceX", 8, 2, -1, 1, 43.0),
    Sketcher.Constraint("DistanceX", 16, 2, -1, 1, 35.0),
    Sketcher.Constraint("DistanceX", -1, 1, 24, 2, 14.0),
    Sketcher.Constraint("DistanceX", -1, 1, 28, 2, 27.0),
    Sketcher.Constraint("DistanceX", -1, 1, 32, 2, 38.0),
    Sketcher.Constraint("DistanceY", 0, 2, 8, 2, 18.0),
    Sketcher.Constraint("DistanceY", 8, 2, 12, 2, 24.0),
    Sketcher.Constraint("DistanceY", 13, 2, 16, 2, 6.0),
    Sketcher.Constraint("DistanceY", 32, 2, 30, 2, 6.0),
    Sketcher.Constraint("DistanceY", -1, 1, 0, 2, 65.5),
    Sketcher.Constraint("DistanceY", 12, 1, 12, 2, 12.1197),
])
pocket2 = body.newObject("PartDesign::Pocket", "Pocket001")
pocket2.Profile = sketch4
pocket2.Length = 2
pocket2.Reversed = True

# Sketch on YZ plane
sketch5 = body.newObject("Sketcher::SketchObject", "Sketch004")
sketch5.AttachmentSupport = (doc.getObject("YZ_Plane"), [""])
sketch5.MapMode = "FlatFace"
sketch5.AttachmentOffset = App.Placement(Vector(0, 0, -43), App.Rotation())
sketch5.addGeometry([
    Part.Circle(Vector(2.5, 8, 0), Vector(0, 0, 1), 0.8),
    Part.Circle(Vector(2.5, 23, 0), Vector(0, 0, 1), 0.8),
    Part.Circle(Vector(2.5, 52, 0), Vector(0, 0, 1), 0.8),
    Part.Circle(Vector(2.5, 63, 0), Vector(0, 0, 1), 0.8),
], False)
sketch5.addConstraint([
    Sketcher.Constraint("Equal", 0, 1),
    Sketcher.Constraint("Equal", 1, 2),
    Sketcher.Constraint("Equal", 2, 3),
    Sketcher.Constraint("Vertical", 0, 3, 1, 3),
    Sketcher.Constraint("Vertical", 1, 3, 2, 3),
    Sketcher.Constraint("Vertical", 2, 3, 3, 3),
    Sketcher.Constraint("Diameter", 0, 1.5),
    Sketcher.Constraint("DistanceY", -1, 1, 0, 3, 8.0),
    Sketcher.Constraint("DistanceY", -1, 1, 1, 3, 23.0),
    Sketcher.Constraint("DistanceY", -1, 1, 2, 3, 52.0),
    Sketcher.Constraint("DistanceY", -1, 1, 3, 3, 63.0),
    Sketcher.Constraint("DistanceX", -1, 1, 0, 3, 2.5),
])
pocket3 = body.newObject("PartDesign::Pocket", "Pocket002")
pocket3.Profile = sketch5
pocket3.Length = 2
pocket3.Reversed = True

# Sketch on YZ plane
sketch6 = body.newObject("Sketcher::SketchObject", "Sketch005")
sketch6.AttachmentSupport = (doc.getObject("YZ_Plane"), [""])
sketch6.MapMode = "FlatFace"
sketch6.AttachmentOffset = App.Placement(Vector(0, 0, 41), App.Rotation())
sketch6.addGeometry([
    Part.Circle(Vector(2.5, 8, 0), Vector(0, 0, 1), 0.8),
    Part.Circle(Vector(2.5, 23, 0), Vector(0, 0, 1), 0.8),
    Part.Circle(Vector(2.5, 52, 0), Vector(0, 0, 1), 0.8),
    Part.Circle(Vector(2.5, 63, 0), Vector(0, 0, 1), 0.8),
], False)
sketch6.addConstraint([
    Sketcher.Constraint("Equal", 0, 1),
    Sketcher.Constraint("Equal", 1, 2),
    Sketcher.Constraint("Equal", 2, 3),
    Sketcher.Constraint("Vertical", 0, 3, 1, 3),
    Sketcher.Constraint("Vertical", 1, 3, 2, 3),
    Sketcher.Constraint("Vertical", 2, 3, 3, 3),
    Sketcher.Constraint("Diameter", 0, 1.5),
    Sketcher.Constraint("DistanceY", -1, 1, 0, 3, 8.0),
    Sketcher.Constraint("DistanceY", -1, 1, 1, 3, 23.0),
    Sketcher.Constraint("DistanceY", -1, 1, 2, 3, 52.0),
    Sketcher.Constraint("DistanceY", -1, 1, 3, 3, 63.0),
    Sketcher.Constraint("DistanceX", -1, 1, 0, 3, 2.5),
])
pocket4 = body.newObject("PartDesign::Pocket", "Pocket003")
pocket4.Profile = sketch6
pocket4.Length = 2
pocket4.Reversed = True

# Sketch on XZ plane
sketch7 = body.newObject("Sketcher::SketchObject", "Sketch006")
sketch7.AttachmentSupport = (doc.getObject("XZ_Plane"), [""])
sketch7.MapMode = "FlatFace"
sketch7.addGeometry([
    Part.LineSegment(Vector(-43, -60.5, 0), Vector(-43, 16.5, 0)),  # 0
    Part.LineSegment(Vector(-43, 16.5, 0), Vector(43, 16.5, 0)),  # 1
    Part.LineSegment(Vector(43, 16.5, 0), Vector(43, -60.5, 0)),  # 2
    Part.LineSegment(Vector(43, -60.5, 0), Vector(-43, -60.5, 0)),  # 3
    Part.Circle(Vector(-40.5, 4.5, 0), Vector(0, 0, 1), 0.8),  # 4
    Part.Circle(Vector(-39, -20.5, 0), Vector(0, 0, 1), 0.8),  # 5
    Part.Circle(Vector(40.5, 4.5, 0), Vector(0, 0, 1), 0.8),  # 6
    Part.LineSegment(Vector(25, 4.5, 0), Vector(-25, 4.5, 0)),  # 7
    Part.LineSegment(Vector(-25, 4.5, 0), Vector(-25, -50.5, 0)),  # 8
    Part.LineSegment(Vector(-25, -50.5, 0), Vector(25, -50.5, 0)),  # 9
    Part.LineSegment(Vector(25, -50.5, 0), Vector(25, 4.5, 0)),  # 10
    Part.Circle(Vector(39, -20.5, 0), Vector(0, 0, 1), 0.8),  # 11
    Part.Circle(Vector(-40.5, -57.5, 0), Vector(0, 0, 1), 0.8),  # 12
    Part.Circle(Vector(40.5, -57.5, 0), Vector(0, 0, 1), 0.8),  # 13
    Part.LineSegment(Vector(-43, 57.5, 0), Vector(-43, 113.5, 0)),  # 14
    Part.LineSegment(Vector(-43, 113.5, 0), Vector(43, 113.5, 0)),  # 15
    Part.LineSegment(Vector(43, 113.5, 0), Vector(43, 57.5, 0)),  # 16
    Part.LineSegment(Vector(43, 57.5, 0), Vector(-43, 57.5, 0)),  # 17
    Part.Circle(Vector(-40.1, 110.5, 0), Vector(0, 0, 1), 0.8),  # 18
    Part.Circle(Vector(-40.5, 85.5, 0), Vector(0, 0, 1), 0.8),  # 19
    Part.Circle(Vector(40.1, 110.5, 0), Vector(0, 0, 1), 0.8),  # 20
    Part.LineSegment(Vector(38, 108.5, 0), Vector(-38, 108.5, 0)),  # 21
    Part.LineSegment(Vector(-38, 108.5, 0), Vector(-38, 65.5, 0)),  # 22
    Part.LineSegment(Vector(-38, 65.5, 0), Vector(38, 65.5, 0)),  # 23
    Part.LineSegment(Vector(38, 65.5, 0), Vector(38, 108.5, 0)),  # 24
    Part.Circle(Vector(40.5, 85.5, 0), Vector(0, 0, 1), 0.8),  # 25
    Part.Circle(Vector(-40.1, 60.4, 0), Vector(0, 0, 1), 0.8),  # 26
    Part.Circle(Vector(40.1, 60.4, 0), Vector(0, 0, 1), 0.8),  # 27
], False)
sketch7.addConstraint([
    Sketcher.Constraint("Coincident", 0, 2, 1, 1),
    Sketcher.Constraint("Coincident", 1, 2, 2, 1),
    Sketcher.Constraint("Coincident", 2, 2, 3, 1),
    Sketcher.Constraint("Coincident", 3, 2, 0, 1),
    Sketcher.Constraint("Coincident", 7, 2, 8, 1),
    Sketcher.Constraint("Coincident", 8, 2, 9, 1),
    Sketcher.Constraint("Coincident", 9, 2, 10, 1),
    Sketcher.Constraint("Coincident", 10, 2, 7, 1),
    Sketcher.Constraint("Coincident", 14, 2, 15, 1),
    Sketcher.Constraint("Coincident", 15, 2, 16, 1),
    Sketcher.Constraint("Coincident", 16, 2, 17, 1),
    Sketcher.Constraint("Coincident", 17, 2, 14, 1),
    Sketcher.Constraint("Coincident", 21, 2, 22, 1),
    Sketcher.Constraint("Coincident", 22, 2, 23, 1),
    Sketcher.Constraint("Coincident", 23, 2, 24, 1),
    Sketcher.Constraint("Coincident", 24, 2, 21, 1),
    Sketcher.Constraint("Vertical", 0),
    Sketcher.Constraint("Horizontal", 1),
    Sketcher.Constraint("Vertical", 2),
    Sketcher.Constraint("Horizontal", 3),
    Sketcher.Constraint("Horizontal", 7),
    Sketcher.Constraint("Vertical", 8),
    Sketcher.Constraint("Horizontal", 9),
    Sketcher.Constraint("Vertical", 10),
    Sketcher.Constraint("Vertical", 14),
    Sketcher.Constraint("Horizontal", 15),
    Sketcher.Constraint("Vertical", 16),
    Sketcher.Constraint("Horizontal", 17),
    Sketcher.Constraint("Horizontal", 21),
    Sketcher.Constraint("Vertical", 22),
    Sketcher.Constraint("Horizontal", 23),
    Sketcher.Constraint("Vertical", 24),
    Sketcher.Constraint("Equal", 4, 5),
    Sketcher.Constraint("Equal", 5, 6),
    Sketcher.Constraint("Equal", 6, 11),
    Sketcher.Constraint("Equal", 11, 12),
    Sketcher.Constraint("Equal", 12, 13),
    Sketcher.Constraint("Equal", 13, 18),
    Sketcher.Constraint("Equal", 18, 19),
    Sketcher.Constraint("Equal", 19, 20),
    Sketcher.Constraint("Equal", 20, 25),
    Sketcher.Constraint("Equal", 25, 26),
    Sketcher.Constraint("Equal", 26, 27),
    Sketcher.Constraint("Symmetric", 4, 3, 6, 3, -2),
    Sketcher.Constraint("Symmetric", 5, 3, 11, 3, -2),
    Sketcher.Constraint("Symmetric", 12, 3, 13, 3, -2),
    Sketcher.Constraint("Symmetric", 18, 3, 20, 3, -2),
    Sketcher.Constraint("Symmetric", 19, 3, 25, 3, -2),
    Sketcher.Constraint("Symmetric", 26, 3, 27, 3, -2),
    Sketcher.Constraint("Horizontal", 6, 3, 7, 2),
    Sketcher.Constraint("Vertical", 4, 3, 12, 3),
    Sketcher.Constraint("Vertical", 12, 3, 19, 3),
    Sketcher.Constraint("Vertical", 18, 3, 26, 3),
    Sketcher.Constraint("Vertical", 3, 2, 14, 2),
    Sketcher.Constraint("Vertical", 2, 2, 15, 2),
    Sketcher.Constraint("Diameter", 4, 1.5),
    Sketcher.Constraint("DistanceX", 1, 1, 1, 2, 86.0),
    Sketcher.Constraint("DistanceX", 7, 2, 7, 1, 50.0),
    Sketcher.Constraint("DistanceX", 21, 2, 21, 1, 76.0),
    Sketcher.Constraint("DistanceY", 0, 1, 0, 2, 77.0),
    Sketcher.Constraint("DistanceY", 8, 2, 8, 1, 55.0),
    Sketcher.Constraint("DistanceY", 14, 1, 14, 2, 56.0),
    Sketcher.Constraint("DistanceY", 22, 2, 22, 1, 43.0),
    Sketcher.Constraint("DistanceX", 5, 3, -1, 1, 39.0),
    Sketcher.Constraint("DistanceX", 0, 2, -1, 1, 43.0),
    Sketcher.Constraint("DistanceX", 7, 2, -1, 1, 25.0),
    Sketcher.Constraint("DistanceX", 21, 2, -1, 1, 38.0),
    Sketcher.Constraint("DistanceY", 5, 3, 4, 3, 25.0),
    Sketcher.Constraint("DistanceX", 4, 3, 6, 3, 81.0),
    Sketcher.Constraint("DistanceY", 12, 3, 5, 3, 37.0),
    Sketcher.Constraint("DistanceY", 4, 3, 19, 3, 81.0),
    Sketcher.Constraint("DistanceY", 4, 3, 0, 2, 12.0),
    Sketcher.Constraint("DistanceY", 19, 3, 14, 2, 28.0),
    Sketcher.Constraint("DistanceY", 21, 2, 14, 2, 5.0),
    Sketcher.Constraint("DistanceY", -1, 1, 4, 3, 4.5),
    Sketcher.Constraint("DistanceY", -1, 1, 26, 3, 60.35),
    Sketcher.Constraint("DistanceY", -1, 1, 18, 3, 110.5303),
    Sketcher.Constraint("DistanceX", 18, 3, -1, 1, 40.142778),
])
pocket5 = body.newObject("PartDesign::Pocket", "Pocket004")
pocket5.Profile = sketch7
pocket5.Length = 123.295748

doc.recompute()
